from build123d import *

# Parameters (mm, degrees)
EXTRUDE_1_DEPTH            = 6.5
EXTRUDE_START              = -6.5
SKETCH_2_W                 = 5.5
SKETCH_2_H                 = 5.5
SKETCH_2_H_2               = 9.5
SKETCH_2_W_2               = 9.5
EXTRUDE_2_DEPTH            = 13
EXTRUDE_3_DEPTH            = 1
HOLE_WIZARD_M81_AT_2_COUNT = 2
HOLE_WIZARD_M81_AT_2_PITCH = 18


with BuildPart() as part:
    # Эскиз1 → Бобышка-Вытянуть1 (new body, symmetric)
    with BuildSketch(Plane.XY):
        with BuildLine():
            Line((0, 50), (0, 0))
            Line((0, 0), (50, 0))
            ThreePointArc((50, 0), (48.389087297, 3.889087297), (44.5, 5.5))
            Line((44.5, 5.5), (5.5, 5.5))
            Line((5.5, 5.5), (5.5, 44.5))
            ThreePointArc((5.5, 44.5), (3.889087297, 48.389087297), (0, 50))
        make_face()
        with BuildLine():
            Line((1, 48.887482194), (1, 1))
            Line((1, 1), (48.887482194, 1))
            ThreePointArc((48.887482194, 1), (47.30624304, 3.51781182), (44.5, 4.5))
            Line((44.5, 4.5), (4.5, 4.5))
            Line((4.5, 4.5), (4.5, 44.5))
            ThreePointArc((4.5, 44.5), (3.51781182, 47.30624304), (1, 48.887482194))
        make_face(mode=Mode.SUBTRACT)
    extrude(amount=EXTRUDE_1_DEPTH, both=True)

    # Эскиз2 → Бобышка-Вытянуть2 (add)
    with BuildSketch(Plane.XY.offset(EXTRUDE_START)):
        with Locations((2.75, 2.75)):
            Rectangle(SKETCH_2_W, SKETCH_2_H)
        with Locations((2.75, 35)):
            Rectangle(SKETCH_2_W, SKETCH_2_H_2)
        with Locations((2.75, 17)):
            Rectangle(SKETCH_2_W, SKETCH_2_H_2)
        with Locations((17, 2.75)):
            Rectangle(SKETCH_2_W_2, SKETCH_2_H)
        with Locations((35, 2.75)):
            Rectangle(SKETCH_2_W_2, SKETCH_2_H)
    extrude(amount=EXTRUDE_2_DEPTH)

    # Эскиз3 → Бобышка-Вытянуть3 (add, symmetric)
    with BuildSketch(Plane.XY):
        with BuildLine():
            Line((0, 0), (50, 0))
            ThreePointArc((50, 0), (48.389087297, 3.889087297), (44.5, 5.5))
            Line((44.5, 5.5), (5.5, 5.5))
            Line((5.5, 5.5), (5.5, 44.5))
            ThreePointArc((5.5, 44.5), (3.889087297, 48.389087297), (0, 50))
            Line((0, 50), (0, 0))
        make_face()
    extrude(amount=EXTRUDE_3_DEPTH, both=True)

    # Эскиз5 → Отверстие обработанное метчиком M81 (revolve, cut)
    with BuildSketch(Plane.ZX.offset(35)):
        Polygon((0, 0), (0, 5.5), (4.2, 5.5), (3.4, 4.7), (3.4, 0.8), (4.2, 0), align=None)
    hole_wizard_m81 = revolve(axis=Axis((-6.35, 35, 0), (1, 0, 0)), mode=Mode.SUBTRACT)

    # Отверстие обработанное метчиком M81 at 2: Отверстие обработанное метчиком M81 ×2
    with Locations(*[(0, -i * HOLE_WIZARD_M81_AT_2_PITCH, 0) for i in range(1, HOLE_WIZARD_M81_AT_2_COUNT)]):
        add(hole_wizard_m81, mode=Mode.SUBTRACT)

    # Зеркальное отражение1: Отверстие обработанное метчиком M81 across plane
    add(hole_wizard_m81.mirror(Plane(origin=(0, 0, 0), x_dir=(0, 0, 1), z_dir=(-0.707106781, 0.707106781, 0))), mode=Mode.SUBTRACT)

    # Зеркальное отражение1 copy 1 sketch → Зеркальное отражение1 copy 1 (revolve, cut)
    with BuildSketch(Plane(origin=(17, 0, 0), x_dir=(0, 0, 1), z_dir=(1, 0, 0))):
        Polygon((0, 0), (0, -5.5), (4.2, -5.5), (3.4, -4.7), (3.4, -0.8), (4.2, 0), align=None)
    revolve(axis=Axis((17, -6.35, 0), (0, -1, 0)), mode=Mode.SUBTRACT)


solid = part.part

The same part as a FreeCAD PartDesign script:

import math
import FreeCAD as App
import Part
import Sketcher
from FreeCAD import Vector

doc = App.newDocument("Part")
body = doc.addObject("PartDesign::Body", "Body")

# Sketch on XY plane
sketch1 = body.newObject("Sketcher::SketchObject", "Sketch")
sketch1.AttachmentSupport = (doc.getObject("XY_Plane"), [""])
sketch1.MapMode = "FlatFace"
sketch1.addGeometry([
    Part.LineSegment(Vector(0, 50, 0), Vector(0, 0, 0)),  # 0
    Part.LineSegment(Vector(0, 0, 0), Vector(50, 0, 0)),  # 1
    Part.ArcOfCircle(Part.Circle(Vector(44.5, 0, 0), Vector(0, 0, 1), 5.5), math.radians(0), math.radians(90)),  # 2
    Part.LineSegment(Vector(44.5, 5.5, 0), Vector(5.5, 5.5, 0)),  # 3
    Part.LineSegment(Vector(5.5, 5.5, 0), Vector(5.5, 44.5, 0)),  # 4
    Part.ArcOfCircle(Part.Circle(Vector(0, 44.5, 0), Vector(0, 0, 1), 5.5), math.radians(0), math.radians(90)),  # 5
    Part.LineSegment(Vector(1, 1, 0), Vector(1, 48.9, 0)),  # 6
    Part.ArcOfCircle(Part.Circle(Vector(0, 44.5, 0), Vector(0, 0, 1), 4.5), math.radians(0), math.radians(77)),  # 7
    Part.LineSegment(Vector(4.5, 44.5, 0), Vector(4.5, 4.5, 0)),  # 8
    Part.LineSegment(Vector(4.5, 4.5, 0), Vector(44.5, 4.5, 0)),  # 9
    Part.ArcOfCircle(Part.Circle(Vector(44.5, 0, 0), Vector(0, 0, 1), 4.5), math.radians(13), math.radians(90)),  # 10
    Part.LineSegment(Vector(48.9, 1, 0), Vector(1, 1, 0)),  # 11
], False)
sketch1.addConstraint([
    Sketcher.Constraint("Coincident", 0, 2, 1, 1),
    Sketcher.Constraint("Coincident", 1, 2, 2, 1),
    Sketcher.Constraint("Tangent", 2, 2, 3, 1),
    Sketcher.Constraint("Coincident", 3, 2, 4, 1),
    Sketcher.Constraint("Tangent", 4, 2, 5, 1),
    Sketcher.Constraint("Coincident", 5, 2, 0, 1),
    Sketcher.Constraint("Coincident", 6, 2, 7, 2),
    Sketcher.Constraint("Tangent", 7, 1, 8, 1),
    Sketcher.Constraint("Coincident", 8, 2, 9, 1),
    Sketcher.Constraint("Tangent", 9, 2, 10, 2),
    Sketcher.Constraint("Coincident", 10, 1, 11, 1),
    Sketcher.Constraint("Coincident", 11, 2, 6, 1),
    Sketcher.Constraint("Vertical", 0),
    Sketcher.Constraint("Horizontal", 1),
    Sketcher.Constraint("Horizontal", 3),
    Sketcher.Constraint("Vertical", 4),
    Sketcher.Constraint("Vertical", 6),
    Sketcher.Constraint("Vertical", 8),
    Sketcher.Constraint("Horizontal", 9),
    Sketcher.Constraint("Horizontal", 11),
    Sketcher.Constraint("Coincident", 0, 2, -1, 1),
    Sketcher.Constraint("Coincident", 7, 3, 5, 3),
    Sketcher.Constraint("Coincident", 10, 3, 2, 3),
    Sketcher.Constraint("Equal", 2, 5),
    Sketcher.Constraint("Equal", 7, 10),
    Sketcher.Constraint("PointOnObject", 2, 3, -1),
    Sketcher.Constraint("PointOnObject", 5, 3, -2),
    Sketcher.Constraint("Equal", 1, 0),
    Sketcher.Constraint("Equal", 11, 6),
    Sketcher.Constraint("Radius", 2, 5.5),
    Sketcher.Constraint("Radius", 7, 4.5),
    Sketcher.Constraint("DistanceX", 1, 1, 1, 2, 50.0),
    Sketcher.Constraint("DistanceX", -1, 1, 6, 2, 1.0),
])
pad1 = body.newObject("PartDesign::Pad", "Pad")
pad1.Profile = sketch1
pad1.Length = 13
pad1.Midplane = True

# Sketch on XY plane
sketch2 = body.newObject("Sketcher::SketchObject", "Sketch001")
sketch2.AttachmentSupport = (doc.getObject("XY_Plane"), [""])
sketch2.MapMode = "FlatFace"
sketch2.AttachmentOffset = App.Placement(Vector(0, 0, -6.5), App.Rotation())
sketch2.addGeometry([
    Part.LineSegment(Vector(0, 6, 0), Vector(0, 0, 0)),  # 0
    Part.LineSegment(Vector(0, 0, 0), Vector(6, 0, 0)),  # 1
    Part.LineSegment(Vector(6, 0, 0), Vector(6, 6, 0)),  # 2
    Part.LineSegment(Vector(6, 6, 0), Vector(0, 6, 0)),  # 3
    Part.LineSegment(Vector(0, 40, 0), Vector(0, 30, 0)),  # 4
    Part.LineSegment(Vector(0, 30, 0), Vector(6, 30, 0)),  # 5
    Part.LineSegment(Vector(6, 30, 0), Vector(6, 40, 0)),  # 6
    Part.LineSegment(Vector(6, 40, 0), Vector(0, 40, 0)),  # 7
    Part.LineSegment(Vector(0, 22, 0), Vector(0, 12, 0)),  # 8
    Part.LineSegment(Vector(0, 12, 0), Vector(6, 12, 0)),  # 9
    Part.LineSegment(Vector(6, 12, 0), Vector(6, 22, 0)),  # 10
    Part.LineSegment(Vector(6, 22, 0), Vector(0, 22, 0)),  # 11
    Part.LineSegment(Vector(12, 6, 0), Vector(12, 0, 0)),  # 12
    Part.LineSegment(Vector(12, 0, 0), Vector(22, 0, 0)),  # 13
    Part.LineSegment(Vector(22, 0, 0), Vector(22, 6, 0)),  # 14
    Part.LineSegment(Vector(22, 6, 0), Vector(12, 6, 0)),  # 15
    Part.LineSegment(Vector(30, 6, 0), Vector(30, 0, 0)),  # 16
    Part.LineSegment(Vector(30, 0, 0), Vector(40, 0, 0)),  # 17
    Part.LineSegment(Vector(40, 0, 0), Vector(40, 6, 0)),  # 18
    Part.LineSegment(Vector(40, 6, 0), Vector(30, 6, 0)),  # 19
], False)
sketch2.addConstraint([
    Sketcher.Constraint("Coincident", 0, 2, 1, 1),
    Sketcher.Constraint("Coincident", 1, 2, 2, 1),
    Sketcher.Constraint("Coincident", 2, 2, 3, 1),
    Sketcher.Constraint("Coincident", 3, 2, 0, 1),
    Sketcher.Constraint("Coincident", 4, 2, 5, 1),
    Sketcher.Constraint("Coincident", 5, 2, 6, 1),
    Sketcher.Constraint("Coincident", 6, 2, 7, 1),
    Sketcher.Constraint("Coincident", 7, 2, 4, 1),
    Sketcher.Constraint("Coincident", 8, 2, 9, 1),
    Sketcher.Constraint("Coincident", 9, 2, 10, 1),
    Sketcher.Constraint("Coincident", 10, 2, 11, 1),
    Sketcher.Constraint("Coincident", 11, 2, 8, 1),
    Sketcher.Constraint("Coincident", 12, 2, 13, 1),
    Sketcher.Constraint("Coincident", 13, 2, 14, 1),
    Sketcher.Constraint("Coincident", 14, 2, 15, 1),
    Sketcher.Constraint("Coincident", 15, 2, 12, 1),
    Sketcher.Constraint("Coincident", 16, 2, 17, 1),
    Sketcher.Constraint("Coincident", 17, 2, 18, 1),
    Sketcher.Constraint("Coincident", 18, 2, 19, 1),
    Sketcher.Constraint("Coincident", 19, 2, 16, 1),
    Sketcher.Constraint("Vertical", 0),
    Sketcher.Constraint("Horizontal", 1),
    Sketcher.Constraint("Vertical", 2),
    Sketcher.Constraint("Horizontal", 3),
    Sketcher.Constraint("Vertical", 4),
    Sketcher.Constraint("Horizontal", 5),
    Sketcher.Constraint("Vertical", 6),
    Sketcher.Constraint("Horizontal", 7),
    Sketcher.Constraint("Vertical", 8),
    Sketcher.Constraint("Horizontal", 9),
    Sketcher.Constraint("Vertical", 10),
    Sketcher.Constraint("Horizontal", 11),
    Sketcher.Constraint("Vertical", 12),
    Sketcher.Constraint("Horizontal", 13),
    Sketcher.Constraint("Vertical", 14),
    Sketcher.Constraint("Horizontal", 15),
    Sketcher.Constraint("Vertical", 16),
    Sketcher.Constraint("Horizontal", 17),
    Sketcher.Constraint("Vertical", 18),
    Sketcher.Constraint("Horizontal", 19),
    Sketcher.Constraint("Coincident", 0, 2, -1, 1),
    Sketcher.Constraint("PointOnObject", 4, 2, -2),
    Sketcher.Constraint("PointOnObject", 8, 2, -2),
    Sketcher.Constraint("PointOnObject", 12, 2, -1),
    Sketcher.Constraint("PointOnObject", 16, 2, -1),
    Sketcher.Constraint("Horizontal", 3, 2, 14, 2),
    Sketcher.Constraint("Horizontal", 15, 2, 18, 2),
    Sketcher.Constraint("Vertical", 2, 2, 5, 2),
    Sketcher.Constraint("Vertical", 6, 2, 9, 2),
    Sketcher.Constraint("Equal", 15, 17),
    Sketcher.Constraint("Equal", 11, 0),
    Sketcher.Constraint("Equal", 19, 4),
    Sketcher.Constraint("Equal", 6, 8),
    Sketcher.Constraint("DistanceX", 1, 1, 1, 2, 5.5),
    Sketcher.Constraint("DistanceX", 13, 1, 13, 2, 9.5),
    Sketcher.Constraint("DistanceY", 8, 2, 4, 2, 18.0),
    Sketcher.Constraint("DistanceX", 12, 2, 16, 2, 18.0),
    Sketcher.Constraint("DistanceY", -1, 1, 4, 2, 30.25),
    Sketcher.Constraint("DistanceX", -1, 1, 12, 2, 12.25),
])
pad2 = body.newObject("PartDesign::Pad", "Pad001")
pad2.Profile = sketch2
pad2.Length = 13

# Sketch on XY plane
sketch3 = body.newObject("Sketcher::SketchObject", "Sketch002")
sketch3.AttachmentSupport = (doc.getObject("XY_Plane"), [""])
sketch3.MapMode = "FlatFace"
sketch3.addGeometry([
    Part.LineSegment(Vector(0, 0, 0), Vector(50, 0, 0)),  # 0
    Part.ArcOfCircle(Part.Circle(Vector(45, 0, 0), Vector(0, 0, 1), 5), math.radians(0), math.radians(90)),  # 1
    Part.LineSegment(Vector(44, 6, 0), Vector(6, 6, 0)),  # 2
    Part.LineSegment(Vector(6, 6, 0), Vector(6, 44, 0)),  # 3
    Part.ArcOfCircle(Part.Circle(Vector(0, 45, 0), Vector(0, 0, 1), 5), math.radians(0), math.radians(90)),  # 4
    Part.LineSegment(Vector(0, 50, 0), Vector(0, 0, 0)),  # 5
], False)
sketch3.addConstraint([
    Sketcher.Constraint("Coincident", 0, 2, 1, 1),
    Sketcher.Constraint("Tangent", 1, 2, 2, 1),
    Sketcher.Constraint("Coincident", 2, 2, 3, 1),
    Sketcher.Constraint("Tangent", 3, 2, 4, 1),
    Sketcher.Constraint("Coincident", 4, 2, 5, 1),
    Sketcher.Constraint("Coincident", 5, 2, 0, 1),
    Sketcher.Constraint("Horizontal", 0),
    Sketcher.Constraint("Horizontal", 2),
    Sketcher.Constraint("Vertical", 3),
    Sketcher.Constraint("Vertical", 5),
    Sketcher.Constraint("Coincident", 5, 2, -1, 1),
    Sketcher.Constraint("Equal", 1, 4),
    Sketcher.Constraint("PointOnObject", 1, 3, -1),
    Sketcher.Constraint("PointOnObject", 4, 3, -2),
    Sketcher.Constraint("Equal", 2, 3),
    Sketcher.Constraint("Radius", 1, 5.5),
    Sketcher.Constraint("DistanceX", 0, 1, 0, 2, 50.0),
])
pad3 = body.newObject("PartDesign::Pad", "Pad002")
pad3.Profile = sketch3
pad3.Length = 2
pad3.Midplane = True

# Sketch on XZ plane
sketch4 = body.newObject("Sketcher::SketchObject", "Sketch003")
sketch4.AttachmentSupport = (doc.getObject("XZ_Plane"), [""])
sketch4.MapMode = "FlatFace"
sketch4.AttachmentOffset = App.Placement(Vector(0, 0, -35), App.Rotation())
sketch4.addGeometry([
    Part.LineSegment(Vector(5.5, 0, 0), Vector(0, 0, 0)),  # 0
    Part.LineSegment(Vector(0, 0, 0), Vector(0, 4.2, 0)),  # 1
    Part.LineSegment(Vector(0, 4.2, 0), Vector(0.8, 3.4, 0)),  # 2
    Part.LineSegment(Vector(0.8, 3.4, 0), Vector(4.7, 3.4, 0)),  # 3
    Part.LineSegment(Vector(4.7, 3.4, 0), Vector(5.5, 4.2, 0)),  # 4
    Part.LineSegment(Vector(5.5, 4.2, 0), Vector(5.5, 0, 0)),  # 5
], False)
sketch4.addConstraint([
    Sketcher.Constraint("Coincident", 0, 2, 1, 1),
    Sketcher.Constraint("Coincident", 1, 2, 2, 1),
    Sketcher.Constraint("Coincident", 2, 2, 3, 1),
    Sketcher.Constraint("Coincident", 3, 2, 4, 1),
    Sketcher.Constraint("Coincident", 4, 2, 5, 1),
    Sketcher.Constraint("Coincident", 5, 2, 0, 1),
    Sketcher.Constraint("Horizontal", 0),
    Sketcher.Constraint("Vertical", 1),
    Sketcher.Constraint("Horizontal", 3),
    Sketcher.Constraint("Vertical", 5),
    Sketcher.Constraint("Coincident", 0, 2, -1, 1),
    Sketcher.Constraint("Perpendicular", 2, 4),
    Sketcher.Constraint("Horizontal", 1, 2, 4, 2),
    Sketcher.Constraint("Equal", 2, 4),
    Sketcher.Constraint("DistanceX", 0, 2, 0, 1, 5.5),
    Sketcher.Constraint("DistanceX", 3, 1, 3, 2, 3.9),
    Sketcher.Constraint("DistanceY", 1, 1, 1, 2, 4.2),
])
groove = body.newObject("PartDesign::Groove", "Groove")
groove.Profile = sketch4
groove.ReferenceAxis = (sketch4, ["H_Axis"])
groove.Angle = 360
doc.recompute()

linearpattern = body.newObject("PartDesign::LinearPattern", "LinearPattern")
linearpattern.Originals = [groove]
linearpattern.Direction = (doc.getObject("Y_Axis"), [""])
linearpattern.Mode = "offset"
linearpattern.Offset = 18
linearpattern.Occurrences = 2
linearpattern.Reversed = True
body.Tip = linearpattern
doc.recompute()

datumplane = body.newObject("PartDesign::Plane", "DatumPlane")
datumplane.Placement = App.Placement(Vector(0, 0, 0), App.Rotation(Vector(0.707106781, 0.707106781, 0), Vector(0, 0, -1), Vector(-0.707106781, 0.707106781, 0), "ZXY"))
mirrored = body.newObject("PartDesign::Mirrored", "Mirrored")
mirrored.Originals = [groove]
mirrored.MirrorPlane = (datumplane, [""])
body.Tip = mirrored

# Sketch on YZ plane
sketch5 = body.newObject("Sketcher::SketchObject", "Sketch004")
sketch5.AttachmentSupport = (doc.getObject("YZ_Plane"), [""])
sketch5.MapMode = "FlatFace"
sketch5.AttachmentOffset = App.Placement(Vector(0, 0, 17), App.Rotation())
sketch5.addGeometry([
    Part.LineSegment(Vector(0, 0, 0), Vector(5.5, 0, 0)),  # 0
    Part.LineSegment(Vector(5.5, 0, 0), Vector(5.5, 4.2, 0)),  # 1
    Part.LineSegment(Vector(5.5, 4.2, 0), Vector(4.7, 3.4, 0)),  # 2
    Part.LineSegment(Vector(4.7, 3.4, 0), Vector(0.8, 3.4, 0)),  # 3
    Part.LineSegment(Vector(0.8, 3.4, 0), Vector(0, 4.2, 0)),  # 4
    Part.LineSegment(Vector(0, 4.2, 0), Vector(0, 0, 0)),  # 5
], False)
sketch5.addConstraint([
    Sketcher.Constraint("Coincident", 0, 2, 1, 1),
    Sketcher.Constraint("Coincident", 1, 2, 2, 1),
    Sketcher.Constraint("Coincident", 2, 2, 3, 1),
    Sketcher.Constraint("Coincident", 3, 2, 4, 1),
    Sketcher.Constraint("Coincident", 4, 2, 5, 1),
    Sketcher.Constraint("Coincident", 5, 2, 0, 1),
    Sketcher.Constraint("Horizontal", 0),
    Sketcher.Constraint("Vertical", 1),
    Sketcher.Constraint("Horizontal", 3),
    Sketcher.Constraint("Vertical", 5),
    Sketcher.Constraint("Coincident", 5, 2, -1, 1),
    Sketcher.Constraint("Perpendicular", 2, 4),
    Sketcher.Constraint("Horizontal", 1, 2, 4, 2),
    Sketcher.Constraint("Equal", 2, 4),
    Sketcher.Constraint("DistanceX", 0, 1, 0, 2, 5.5),
    Sketcher.Constraint("DistanceX", 3, 2, 3, 1, 3.9),
    Sketcher.Constraint("DistanceY", 1, 1, 1, 2, 4.2),
])
groove2 = body.newObject("PartDesign::Groove", "Groove001")
groove2.Profile = sketch5
groove2.ReferenceAxis = (sketch5, ["H_Axis"])
groove2.Angle = 360

doc.recompute()
